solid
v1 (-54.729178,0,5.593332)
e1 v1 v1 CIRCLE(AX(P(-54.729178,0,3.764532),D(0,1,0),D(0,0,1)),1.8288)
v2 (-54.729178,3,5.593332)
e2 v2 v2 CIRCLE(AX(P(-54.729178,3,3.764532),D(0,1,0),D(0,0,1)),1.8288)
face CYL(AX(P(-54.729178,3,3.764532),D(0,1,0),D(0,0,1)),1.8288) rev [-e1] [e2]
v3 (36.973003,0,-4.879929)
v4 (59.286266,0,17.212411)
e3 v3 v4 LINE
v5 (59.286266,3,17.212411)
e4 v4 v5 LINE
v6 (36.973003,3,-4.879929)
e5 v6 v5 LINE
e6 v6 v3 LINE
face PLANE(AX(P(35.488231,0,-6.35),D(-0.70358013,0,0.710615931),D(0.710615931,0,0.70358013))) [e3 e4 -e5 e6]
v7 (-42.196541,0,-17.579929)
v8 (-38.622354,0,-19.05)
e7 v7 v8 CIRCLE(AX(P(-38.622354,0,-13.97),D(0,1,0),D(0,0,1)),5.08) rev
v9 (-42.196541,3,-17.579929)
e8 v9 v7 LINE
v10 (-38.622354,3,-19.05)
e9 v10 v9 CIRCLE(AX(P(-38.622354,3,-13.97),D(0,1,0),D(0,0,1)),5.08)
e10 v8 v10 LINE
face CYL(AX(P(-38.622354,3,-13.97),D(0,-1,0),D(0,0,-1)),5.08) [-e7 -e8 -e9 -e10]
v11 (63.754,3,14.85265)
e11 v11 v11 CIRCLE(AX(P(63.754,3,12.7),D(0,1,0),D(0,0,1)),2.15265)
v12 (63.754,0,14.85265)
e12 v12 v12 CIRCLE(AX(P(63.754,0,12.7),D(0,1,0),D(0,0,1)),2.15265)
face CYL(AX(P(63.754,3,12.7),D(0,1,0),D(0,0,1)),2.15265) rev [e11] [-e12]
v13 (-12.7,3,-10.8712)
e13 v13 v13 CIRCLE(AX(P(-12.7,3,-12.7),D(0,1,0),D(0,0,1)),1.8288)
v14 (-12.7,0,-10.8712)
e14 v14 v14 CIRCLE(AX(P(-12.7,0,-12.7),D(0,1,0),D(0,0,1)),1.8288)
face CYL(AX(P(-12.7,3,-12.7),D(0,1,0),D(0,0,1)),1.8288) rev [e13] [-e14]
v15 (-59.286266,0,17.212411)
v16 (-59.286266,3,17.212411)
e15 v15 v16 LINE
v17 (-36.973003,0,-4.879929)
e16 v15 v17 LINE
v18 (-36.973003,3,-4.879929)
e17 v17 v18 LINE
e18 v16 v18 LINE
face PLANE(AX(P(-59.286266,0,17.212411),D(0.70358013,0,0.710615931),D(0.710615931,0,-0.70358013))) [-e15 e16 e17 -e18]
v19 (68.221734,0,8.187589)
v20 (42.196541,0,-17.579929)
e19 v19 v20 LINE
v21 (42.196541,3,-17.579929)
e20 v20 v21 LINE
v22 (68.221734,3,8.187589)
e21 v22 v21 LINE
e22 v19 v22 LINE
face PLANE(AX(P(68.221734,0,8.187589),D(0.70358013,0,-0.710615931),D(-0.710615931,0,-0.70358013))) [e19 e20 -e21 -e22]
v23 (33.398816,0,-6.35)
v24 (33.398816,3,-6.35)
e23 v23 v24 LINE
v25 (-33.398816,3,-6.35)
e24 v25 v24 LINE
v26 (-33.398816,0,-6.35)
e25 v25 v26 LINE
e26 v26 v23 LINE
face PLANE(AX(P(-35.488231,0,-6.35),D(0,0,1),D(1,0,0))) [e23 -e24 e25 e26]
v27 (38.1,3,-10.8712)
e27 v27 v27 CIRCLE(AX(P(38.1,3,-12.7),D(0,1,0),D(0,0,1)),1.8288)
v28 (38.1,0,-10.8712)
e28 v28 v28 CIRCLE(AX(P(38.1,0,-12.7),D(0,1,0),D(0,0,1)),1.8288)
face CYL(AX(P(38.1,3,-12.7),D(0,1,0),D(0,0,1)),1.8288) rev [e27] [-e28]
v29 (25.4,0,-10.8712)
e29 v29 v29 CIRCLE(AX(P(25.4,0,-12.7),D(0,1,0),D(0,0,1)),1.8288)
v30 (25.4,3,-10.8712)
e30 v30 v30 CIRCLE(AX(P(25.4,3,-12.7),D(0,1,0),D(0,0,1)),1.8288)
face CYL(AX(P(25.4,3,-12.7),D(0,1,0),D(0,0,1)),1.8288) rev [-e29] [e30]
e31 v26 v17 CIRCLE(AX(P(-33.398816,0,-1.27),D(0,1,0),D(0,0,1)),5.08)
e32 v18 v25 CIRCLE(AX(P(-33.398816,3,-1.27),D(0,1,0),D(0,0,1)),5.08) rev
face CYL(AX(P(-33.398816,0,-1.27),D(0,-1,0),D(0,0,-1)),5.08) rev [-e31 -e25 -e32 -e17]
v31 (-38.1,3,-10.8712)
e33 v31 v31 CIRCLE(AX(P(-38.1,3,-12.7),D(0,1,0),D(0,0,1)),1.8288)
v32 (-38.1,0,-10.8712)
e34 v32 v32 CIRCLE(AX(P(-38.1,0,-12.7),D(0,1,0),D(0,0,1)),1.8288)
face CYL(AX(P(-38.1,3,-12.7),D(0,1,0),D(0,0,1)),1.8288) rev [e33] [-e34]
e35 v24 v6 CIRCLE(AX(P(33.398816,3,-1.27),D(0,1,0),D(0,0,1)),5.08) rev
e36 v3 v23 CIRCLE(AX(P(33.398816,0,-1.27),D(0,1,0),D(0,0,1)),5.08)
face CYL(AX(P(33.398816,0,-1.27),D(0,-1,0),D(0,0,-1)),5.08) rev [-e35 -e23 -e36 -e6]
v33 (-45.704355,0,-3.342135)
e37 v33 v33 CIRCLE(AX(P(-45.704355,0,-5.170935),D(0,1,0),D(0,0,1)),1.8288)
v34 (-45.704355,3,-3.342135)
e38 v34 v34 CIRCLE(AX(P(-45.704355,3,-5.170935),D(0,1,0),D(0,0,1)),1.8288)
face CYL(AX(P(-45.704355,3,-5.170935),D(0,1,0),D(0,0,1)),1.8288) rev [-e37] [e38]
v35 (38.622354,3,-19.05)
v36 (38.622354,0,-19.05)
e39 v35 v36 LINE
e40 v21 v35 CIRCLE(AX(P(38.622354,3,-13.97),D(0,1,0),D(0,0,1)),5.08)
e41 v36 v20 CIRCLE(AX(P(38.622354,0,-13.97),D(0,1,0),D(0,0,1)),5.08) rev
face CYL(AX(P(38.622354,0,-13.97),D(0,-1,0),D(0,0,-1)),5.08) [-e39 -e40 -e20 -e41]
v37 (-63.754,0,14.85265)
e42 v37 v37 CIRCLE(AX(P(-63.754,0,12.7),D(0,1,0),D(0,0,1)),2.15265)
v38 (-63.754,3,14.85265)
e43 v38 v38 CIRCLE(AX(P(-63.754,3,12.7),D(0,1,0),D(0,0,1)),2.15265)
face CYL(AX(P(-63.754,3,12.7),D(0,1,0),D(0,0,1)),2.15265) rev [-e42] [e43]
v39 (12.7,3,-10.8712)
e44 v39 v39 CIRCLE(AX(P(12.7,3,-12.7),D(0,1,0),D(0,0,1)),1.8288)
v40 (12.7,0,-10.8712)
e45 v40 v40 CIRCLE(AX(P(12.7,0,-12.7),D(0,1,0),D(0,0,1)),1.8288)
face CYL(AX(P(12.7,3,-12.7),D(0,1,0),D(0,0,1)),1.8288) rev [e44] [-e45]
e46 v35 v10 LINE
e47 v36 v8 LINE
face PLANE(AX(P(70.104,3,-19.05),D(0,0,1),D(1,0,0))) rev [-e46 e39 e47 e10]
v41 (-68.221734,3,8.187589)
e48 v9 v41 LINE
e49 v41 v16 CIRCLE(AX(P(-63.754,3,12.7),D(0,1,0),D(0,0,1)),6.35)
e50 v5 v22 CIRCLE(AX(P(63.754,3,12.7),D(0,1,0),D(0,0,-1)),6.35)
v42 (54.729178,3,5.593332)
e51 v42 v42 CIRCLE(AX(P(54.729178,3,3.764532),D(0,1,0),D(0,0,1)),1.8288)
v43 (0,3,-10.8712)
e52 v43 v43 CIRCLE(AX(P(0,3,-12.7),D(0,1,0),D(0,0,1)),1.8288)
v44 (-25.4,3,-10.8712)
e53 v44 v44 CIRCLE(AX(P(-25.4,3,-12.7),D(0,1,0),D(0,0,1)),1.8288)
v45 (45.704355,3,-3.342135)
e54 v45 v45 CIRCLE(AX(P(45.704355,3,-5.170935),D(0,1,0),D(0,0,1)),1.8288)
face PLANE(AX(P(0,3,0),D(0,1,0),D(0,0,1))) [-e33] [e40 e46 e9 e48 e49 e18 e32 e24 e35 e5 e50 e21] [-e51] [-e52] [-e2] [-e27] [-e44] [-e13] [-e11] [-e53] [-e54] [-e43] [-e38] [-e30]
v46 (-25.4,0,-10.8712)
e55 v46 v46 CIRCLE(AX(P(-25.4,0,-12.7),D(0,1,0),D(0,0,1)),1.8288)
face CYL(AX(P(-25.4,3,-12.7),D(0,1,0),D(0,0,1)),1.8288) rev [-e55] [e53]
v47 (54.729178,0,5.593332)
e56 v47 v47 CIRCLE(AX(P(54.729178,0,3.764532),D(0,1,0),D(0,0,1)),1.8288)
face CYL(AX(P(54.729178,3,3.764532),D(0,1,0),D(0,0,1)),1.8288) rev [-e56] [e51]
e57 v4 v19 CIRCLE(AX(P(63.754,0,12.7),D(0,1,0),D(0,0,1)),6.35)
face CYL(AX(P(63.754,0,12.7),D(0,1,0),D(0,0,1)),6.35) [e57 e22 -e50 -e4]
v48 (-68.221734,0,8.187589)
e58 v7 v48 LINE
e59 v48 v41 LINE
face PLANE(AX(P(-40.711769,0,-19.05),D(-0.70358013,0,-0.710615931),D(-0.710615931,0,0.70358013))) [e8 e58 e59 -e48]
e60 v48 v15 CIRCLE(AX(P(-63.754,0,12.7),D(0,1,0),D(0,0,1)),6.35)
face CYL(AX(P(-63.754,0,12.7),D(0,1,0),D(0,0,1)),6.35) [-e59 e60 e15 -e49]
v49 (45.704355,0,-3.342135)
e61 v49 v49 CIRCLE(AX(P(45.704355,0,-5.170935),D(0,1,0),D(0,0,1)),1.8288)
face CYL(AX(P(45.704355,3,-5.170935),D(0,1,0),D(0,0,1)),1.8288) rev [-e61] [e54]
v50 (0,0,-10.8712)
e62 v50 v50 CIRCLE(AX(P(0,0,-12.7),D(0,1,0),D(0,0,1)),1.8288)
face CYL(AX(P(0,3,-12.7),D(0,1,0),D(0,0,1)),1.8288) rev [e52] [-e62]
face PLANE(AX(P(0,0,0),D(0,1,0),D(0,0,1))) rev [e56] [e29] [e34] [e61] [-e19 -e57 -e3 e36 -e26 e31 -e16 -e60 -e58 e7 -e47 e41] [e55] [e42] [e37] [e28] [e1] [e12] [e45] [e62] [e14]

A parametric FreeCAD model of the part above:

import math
import FreeCAD as App
import Part
import Sketcher

V = App.Vector
Q = App.Units.Quantity


def edges_at(feature, points):
    """Names of the edges that pass closest to the given points."""
    edges = feature.Shape.Edges
    near = lambda p: min(range(len(edges)), key=lambda i: edges[i].distToShape(Part.Vertex(*p))[0])
    return sorted({f"Edge{near(p) + 1}" for p in points})


def add_polygon(sketch, points):
    """Adds a closed chain of lines whose ends are joined by coincident constraints."""
    first, n = sketch.GeometryCount, len(points)
    for a, b in zip(points, points[1:] + points[:1]):
        sketch.addGeometry(Part.LineSegment(App.Vector(*a, 0), App.Vector(*b, 0)), False)
    for i in range(n):
        sketch.addConstraint(Sketcher.Constraint("Coincident", first + i, 2, first + (i + 1) % n, 1))

doc = App.newDocument("Part")
body = doc.addObject("PartDesign::Body", "Body")

# Sketch on XZ plane
sketch1 = body.newObject("Sketcher::SketchObject", "Sketch")
sketch1.AttachmentSupport = (doc.getObject("XZ_Plane"), [""])
sketch1.MapMode = "FlatFace"
add_polygon(sketch1, [(-70, -19), (-70, 19), (70, 19), (70, -19)])  # lines 0-3
sketch1.addConstraint([
    Sketcher.Constraint("Vertical", 0),
    Sketcher.Constraint("Horizontal", 1),
    Sketcher.Constraint("Vertical", 2),
    Sketcher.Constraint("Horizontal", 3),
    Sketcher.Constraint("Symmetric", 0, 2, 2, 2, -1, 1),
    Sketcher.Constraint("DistanceY", 0, 1, 0, 2, Q("1.5 in")),
    Sketcher.Constraint("DistanceX", 1, 1, 1, 2, Q("5.52 in")),
])
pad1 = body.newObject("PartDesign::Pad", "Pad")
pad1.Profile = sketch1
pad1.Length = 3
pad1.Reversed = True

# Sketch on XZ plane
sketch2 = body.newObject("Sketcher::SketchObject", "Sketch001")
sketch2.AttachmentSupport = (doc.getObject("XZ_Plane"), [""])
sketch2.MapMode = "FlatFace"
sketch2.AttachmentOffset = App.Placement(V(0, 0, -3), App.Rotation())
add_polygon(sketch2, [(-86, -35), (-86, 35), (86, 35), (86, -35)])  # lines 0-3
sketch2.addGeometry(Part.LineSegment(V(-35, -6, 0), V(-59, 17, 0)), False)  # 4
sketch2.addGeometry(Part.ArcOfCircle(Part.Circle(V(-64, 13, 0), V(0, 0, 1), 6), math.radians(45), math.radians(225)), False)  # 5
sketch2.addGeometry(Part.LineSegment(V(-68, 8, 0), V(-41, -19, 0)), False)  # 6
sketch2.addGeometry(Part.LineSegment(V(-41, -19, 0), V(41, -19, 0)), False)  # 7
sketch2.addGeometry(Part.LineSegment(V(41, -19, 0), V(68, 8, 0)), False)  # 8
sketch2.addGeometry(Part.ArcOfCircle(Part.Circle(V(64, 13, 0), V(0, 0, 1), 6), math.radians(-45), math.radians(135)), False)  # 9
sketch2.addGeometry(Part.LineSegment(V(59, 17, 0), V(35, -6, 0)), False)  # 10
sketch2.addGeometry(Part.LineSegment(V(35, -6, 0), V(-35, -6, 0)), False)  # 11
sketch2.addConstraint([
    Sketcher.Constraint("Tangent", 4, 2, 5, 1),
    Sketcher.Constraint("Tangent", 5, 2, 6, 1),
    Sketcher.Constraint("Coincident", 6, 2, 7, 1),
    Sketcher.Constraint("Coincident", 7, 2, 8, 1),
    Sketcher.Constraint("Tangent", 8, 2, 9, 1),
    Sketcher.Constraint("Tangent", 9, 2, 10, 1),
    Sketcher.Constraint("Coincident", 10, 2, 11, 1),
    Sketcher.Constraint("Coincident", 11, 2, 4, 1),
    Sketcher.Constraint("Vertical", 0),
    Sketcher.Constraint("Horizontal", 1),
    Sketcher.Constraint("Vertical", 2),
    Sketcher.Constraint("Horizontal", 3),
    Sketcher.Constraint("Horizontal", 7),
    Sketcher.Constraint("Horizontal", 11),
    Sketcher.Constraint("Equal", 5, 9),
    Sketcher.Constraint("Symmetric", 0, 2, 2, 2, -1, 1),
    Sketcher.Constraint("Symmetric", 5, 3, 9, 3, -2),
    Sketcher.Constraint("Parallel", 4, 6),
    Sketcher.Constraint("Parallel", 8, 10),
    Sketcher.Constraint("Horizontal", 5, 2, 8, 2),
    Sketcher.Constraint("Radius", 5, Q("0.25 in")),
    Sketcher.Constraint("DistanceY", -1, 1, 5, 3, Q("0.5 in")),
    Sketcher.Constraint("DistanceY", 7, 2, 10, 2, Q("0.5 in")),
    Sketcher.Constraint("DistanceX", 5, 3, -1, 1, Q("2.51 in")),
    Sketcher.Constraint("DistanceY", 6, 2, -1, 1, Q("0.75 in")),
    Sketcher.Constraint("DistanceX", 1, 1, 1, 2, Q("171.272 mm")),
    Sketcher.Constraint("DistanceY", 0, 1, 0, 2, Q("69.164 mm")),
    Sketcher.Constraint("DistanceX", 7, 1, 7, 2, Q("81.423538 mm")),
])
pocket1 = body.newObject("PartDesign::Pocket", "Pocket")
pocket1.Profile = sketch2
pocket1.Type = "ThroughAll"
pocket1.Reversed = True

# Sketch on XZ plane
sketch3 = body.newObject("Sketcher::SketchObject", "Sketch002")
sketch3.AttachmentSupport = (doc.getObject("XZ_Plane"), [""])
sketch3.MapMode = "FlatFace"
sketch3.AttachmentOffset = App.Placement(V(0, 0, -3), App.Rotation())
sketch3.addGeometry([
    Part.Circle(V(-63.8, 12.7, 0), V(0, 0, 1), 2.2),
    Part.Circle(V(63.8, 12.7, 0), V(0, 0, 1), 2.2),
], False)
sketch3.addConstraint([
    Sketcher.Constraint("Equal", 0, 1),
    Sketcher.Constraint("Symmetric", 0, 3, 1, 3, -2),
    Sketcher.Constraint("Diameter", 0, Q("0.1695 in")),
    Sketcher.Constraint("DistanceY", -1, 1, 0, 3, Q("0.5 in")),
    Sketcher.Constraint("DistanceX", 0, 3, -1, 1, Q("2.51 in")),
])
doc.recompute()
hole = body.newObject("PartDesign::Hole", "Hole")
hole.Profile = sketch3
hole.ThreadType = "None"
hole.Diameter = Q("0.1695 in")
hole.DepthType = "ThroughAll"
hole.Reversed = True

# Sketch on XZ plane
sketch4 = body.newObject("Sketcher::SketchObject", "Sketch003")
sketch4.AttachmentSupport = (doc.getObject("XZ_Plane"), [""])
sketch4.MapMode = "FlatFace"
sketch4.AttachmentOffset = App.Placement(V(0, 0, -3), App.Rotation())
sketch4.addGeometry([
    Part.Circle(V(-54.7, 3.8, 0), V(0, 0, 1), 1.8),  # 0
    Part.Circle(V(-45.7, -5.2, 0), V(0, 0, 1), 1.8),  # 1
    Part.Circle(V(-38.1, -12.7, 0), V(0, 0, 1), 1.8),  # 2
    Part.Circle(V(0, -12.7, 0), V(0, 0, 1), 1.8),  # 3
    Part.Circle(V(38.1, -12.7, 0), V(0, 0, 1), 1.8),  # 4
    Part.Circle(V(45.7, -5.2, 0), V(0, 0, 1), 1.8),  # 5
    Part.Circle(V(54.7, 3.8, 0), V(0, 0, 1), 1.8),  # 6
    Part.Circle(V(-25.4, -12.7, 0), V(0, 0, 1), 1.8),  # 7
    Part.Circle(V(-12.7, -12.7, 0), V(0, 0, 1), 1.8),  # 8
    Part.Circle(V(12.7, -12.7, 0), V(0, 0, 1), 1.8),  # 9
    Part.Circle(V(25.4, -12.7, 0), V(0, 0, 1), 1.8),  # 10
], False)
sketch4.addConstraint([
    Sketcher.Constraint("Equal", 0, 1),
    Sketcher.Constraint("Equal", 1, 2),
    Sketcher.Constraint("Equal", 2, 3),
    Sketcher.Constraint("Equal", 3, 4),
    Sketcher.Constraint("Equal", 4, 5),
    Sketcher.Constraint("Equal", 5, 6),
    Sketcher.Constraint("Equal", 6, 7),
    Sketcher.Constraint("Equal", 7, 8),
    Sketcher.Constraint("Equal", 8, 9),
    Sketcher.Constraint("Equal", 9, 10),
    Sketcher.Constraint("Symmetric", 2, 3, 4, 3, -2),
    Sketcher.Constraint("Symmetric", 1, 3, 5, 3, -2),
    Sketcher.Constraint("Symmetric", 0, 3, 6, 3, -2),
    Sketcher.Constraint("Symmetric", 8, 3, 9, 3, -2),
    Sketcher.Constraint("Symmetric", 7, 3, 10, 3, -2),
    Sketcher.Constraint("PointOnObject", 3, 3, -2),
    Sketcher.Constraint("Horizontal", 2, 3, 3, 3),
    Sketcher.Constraint("Horizontal", 4, 3, 7, 3),
    Sketcher.Constraint("Horizontal", 7, 3, 8, 3),
    Sketcher.Constraint("Diameter", 0, Q("0.144 in")),
    Sketcher.Constraint("DistanceX", 7, 3, -1, 1, Q("1 in")),
    Sketcher.Constraint("DistanceX", 2, 3, 4, 3, Q("3 in")),
    Sketcher.Constraint("DistanceX", 2, 3, 8, 3, Q("1 in")),
    Sketcher.Constraint("DistanceY", 2, 3, -1, 1, Q("0.5 in")),
    Sketcher.Constraint("DistanceX", 1, 3, 5, 3, Q("91.408711 mm")),
    Sketcher.Constraint("DistanceX", 0, 3, -1, 1, Q("54.729178 mm")),
    Sketcher.Constraint("DistanceY", -1, 1, 0, 3, Q("3.764532 mm")),
    Sketcher.Constraint("DistanceY", 1, 3, -1, 1, Q("5.170935 mm")),
])
doc.recompute()
hole2 = body.newObject("PartDesign::Hole", "Hole001")
hole2.Profile = sketch4
hole2.ThreadType = "None"
hole2.Diameter = Q("0.144 in")
hole2.DepthType = "ThroughAll"
hole2.Reversed = True
doc.recompute()

fillet = body.newObject("PartDesign::Fillet", "Fillet")
fillet.Base = (hole2, edges_at(hole2, [
    (-40.712, 1.5, -19.05),
    (40.712, 1.5, -19.05),
    (35.488, 1.5, -6.35),
    (-35.488, 1.5, -6.35),
]))
fillet.Radius = Q("0.2 in")

doc.recompute()
